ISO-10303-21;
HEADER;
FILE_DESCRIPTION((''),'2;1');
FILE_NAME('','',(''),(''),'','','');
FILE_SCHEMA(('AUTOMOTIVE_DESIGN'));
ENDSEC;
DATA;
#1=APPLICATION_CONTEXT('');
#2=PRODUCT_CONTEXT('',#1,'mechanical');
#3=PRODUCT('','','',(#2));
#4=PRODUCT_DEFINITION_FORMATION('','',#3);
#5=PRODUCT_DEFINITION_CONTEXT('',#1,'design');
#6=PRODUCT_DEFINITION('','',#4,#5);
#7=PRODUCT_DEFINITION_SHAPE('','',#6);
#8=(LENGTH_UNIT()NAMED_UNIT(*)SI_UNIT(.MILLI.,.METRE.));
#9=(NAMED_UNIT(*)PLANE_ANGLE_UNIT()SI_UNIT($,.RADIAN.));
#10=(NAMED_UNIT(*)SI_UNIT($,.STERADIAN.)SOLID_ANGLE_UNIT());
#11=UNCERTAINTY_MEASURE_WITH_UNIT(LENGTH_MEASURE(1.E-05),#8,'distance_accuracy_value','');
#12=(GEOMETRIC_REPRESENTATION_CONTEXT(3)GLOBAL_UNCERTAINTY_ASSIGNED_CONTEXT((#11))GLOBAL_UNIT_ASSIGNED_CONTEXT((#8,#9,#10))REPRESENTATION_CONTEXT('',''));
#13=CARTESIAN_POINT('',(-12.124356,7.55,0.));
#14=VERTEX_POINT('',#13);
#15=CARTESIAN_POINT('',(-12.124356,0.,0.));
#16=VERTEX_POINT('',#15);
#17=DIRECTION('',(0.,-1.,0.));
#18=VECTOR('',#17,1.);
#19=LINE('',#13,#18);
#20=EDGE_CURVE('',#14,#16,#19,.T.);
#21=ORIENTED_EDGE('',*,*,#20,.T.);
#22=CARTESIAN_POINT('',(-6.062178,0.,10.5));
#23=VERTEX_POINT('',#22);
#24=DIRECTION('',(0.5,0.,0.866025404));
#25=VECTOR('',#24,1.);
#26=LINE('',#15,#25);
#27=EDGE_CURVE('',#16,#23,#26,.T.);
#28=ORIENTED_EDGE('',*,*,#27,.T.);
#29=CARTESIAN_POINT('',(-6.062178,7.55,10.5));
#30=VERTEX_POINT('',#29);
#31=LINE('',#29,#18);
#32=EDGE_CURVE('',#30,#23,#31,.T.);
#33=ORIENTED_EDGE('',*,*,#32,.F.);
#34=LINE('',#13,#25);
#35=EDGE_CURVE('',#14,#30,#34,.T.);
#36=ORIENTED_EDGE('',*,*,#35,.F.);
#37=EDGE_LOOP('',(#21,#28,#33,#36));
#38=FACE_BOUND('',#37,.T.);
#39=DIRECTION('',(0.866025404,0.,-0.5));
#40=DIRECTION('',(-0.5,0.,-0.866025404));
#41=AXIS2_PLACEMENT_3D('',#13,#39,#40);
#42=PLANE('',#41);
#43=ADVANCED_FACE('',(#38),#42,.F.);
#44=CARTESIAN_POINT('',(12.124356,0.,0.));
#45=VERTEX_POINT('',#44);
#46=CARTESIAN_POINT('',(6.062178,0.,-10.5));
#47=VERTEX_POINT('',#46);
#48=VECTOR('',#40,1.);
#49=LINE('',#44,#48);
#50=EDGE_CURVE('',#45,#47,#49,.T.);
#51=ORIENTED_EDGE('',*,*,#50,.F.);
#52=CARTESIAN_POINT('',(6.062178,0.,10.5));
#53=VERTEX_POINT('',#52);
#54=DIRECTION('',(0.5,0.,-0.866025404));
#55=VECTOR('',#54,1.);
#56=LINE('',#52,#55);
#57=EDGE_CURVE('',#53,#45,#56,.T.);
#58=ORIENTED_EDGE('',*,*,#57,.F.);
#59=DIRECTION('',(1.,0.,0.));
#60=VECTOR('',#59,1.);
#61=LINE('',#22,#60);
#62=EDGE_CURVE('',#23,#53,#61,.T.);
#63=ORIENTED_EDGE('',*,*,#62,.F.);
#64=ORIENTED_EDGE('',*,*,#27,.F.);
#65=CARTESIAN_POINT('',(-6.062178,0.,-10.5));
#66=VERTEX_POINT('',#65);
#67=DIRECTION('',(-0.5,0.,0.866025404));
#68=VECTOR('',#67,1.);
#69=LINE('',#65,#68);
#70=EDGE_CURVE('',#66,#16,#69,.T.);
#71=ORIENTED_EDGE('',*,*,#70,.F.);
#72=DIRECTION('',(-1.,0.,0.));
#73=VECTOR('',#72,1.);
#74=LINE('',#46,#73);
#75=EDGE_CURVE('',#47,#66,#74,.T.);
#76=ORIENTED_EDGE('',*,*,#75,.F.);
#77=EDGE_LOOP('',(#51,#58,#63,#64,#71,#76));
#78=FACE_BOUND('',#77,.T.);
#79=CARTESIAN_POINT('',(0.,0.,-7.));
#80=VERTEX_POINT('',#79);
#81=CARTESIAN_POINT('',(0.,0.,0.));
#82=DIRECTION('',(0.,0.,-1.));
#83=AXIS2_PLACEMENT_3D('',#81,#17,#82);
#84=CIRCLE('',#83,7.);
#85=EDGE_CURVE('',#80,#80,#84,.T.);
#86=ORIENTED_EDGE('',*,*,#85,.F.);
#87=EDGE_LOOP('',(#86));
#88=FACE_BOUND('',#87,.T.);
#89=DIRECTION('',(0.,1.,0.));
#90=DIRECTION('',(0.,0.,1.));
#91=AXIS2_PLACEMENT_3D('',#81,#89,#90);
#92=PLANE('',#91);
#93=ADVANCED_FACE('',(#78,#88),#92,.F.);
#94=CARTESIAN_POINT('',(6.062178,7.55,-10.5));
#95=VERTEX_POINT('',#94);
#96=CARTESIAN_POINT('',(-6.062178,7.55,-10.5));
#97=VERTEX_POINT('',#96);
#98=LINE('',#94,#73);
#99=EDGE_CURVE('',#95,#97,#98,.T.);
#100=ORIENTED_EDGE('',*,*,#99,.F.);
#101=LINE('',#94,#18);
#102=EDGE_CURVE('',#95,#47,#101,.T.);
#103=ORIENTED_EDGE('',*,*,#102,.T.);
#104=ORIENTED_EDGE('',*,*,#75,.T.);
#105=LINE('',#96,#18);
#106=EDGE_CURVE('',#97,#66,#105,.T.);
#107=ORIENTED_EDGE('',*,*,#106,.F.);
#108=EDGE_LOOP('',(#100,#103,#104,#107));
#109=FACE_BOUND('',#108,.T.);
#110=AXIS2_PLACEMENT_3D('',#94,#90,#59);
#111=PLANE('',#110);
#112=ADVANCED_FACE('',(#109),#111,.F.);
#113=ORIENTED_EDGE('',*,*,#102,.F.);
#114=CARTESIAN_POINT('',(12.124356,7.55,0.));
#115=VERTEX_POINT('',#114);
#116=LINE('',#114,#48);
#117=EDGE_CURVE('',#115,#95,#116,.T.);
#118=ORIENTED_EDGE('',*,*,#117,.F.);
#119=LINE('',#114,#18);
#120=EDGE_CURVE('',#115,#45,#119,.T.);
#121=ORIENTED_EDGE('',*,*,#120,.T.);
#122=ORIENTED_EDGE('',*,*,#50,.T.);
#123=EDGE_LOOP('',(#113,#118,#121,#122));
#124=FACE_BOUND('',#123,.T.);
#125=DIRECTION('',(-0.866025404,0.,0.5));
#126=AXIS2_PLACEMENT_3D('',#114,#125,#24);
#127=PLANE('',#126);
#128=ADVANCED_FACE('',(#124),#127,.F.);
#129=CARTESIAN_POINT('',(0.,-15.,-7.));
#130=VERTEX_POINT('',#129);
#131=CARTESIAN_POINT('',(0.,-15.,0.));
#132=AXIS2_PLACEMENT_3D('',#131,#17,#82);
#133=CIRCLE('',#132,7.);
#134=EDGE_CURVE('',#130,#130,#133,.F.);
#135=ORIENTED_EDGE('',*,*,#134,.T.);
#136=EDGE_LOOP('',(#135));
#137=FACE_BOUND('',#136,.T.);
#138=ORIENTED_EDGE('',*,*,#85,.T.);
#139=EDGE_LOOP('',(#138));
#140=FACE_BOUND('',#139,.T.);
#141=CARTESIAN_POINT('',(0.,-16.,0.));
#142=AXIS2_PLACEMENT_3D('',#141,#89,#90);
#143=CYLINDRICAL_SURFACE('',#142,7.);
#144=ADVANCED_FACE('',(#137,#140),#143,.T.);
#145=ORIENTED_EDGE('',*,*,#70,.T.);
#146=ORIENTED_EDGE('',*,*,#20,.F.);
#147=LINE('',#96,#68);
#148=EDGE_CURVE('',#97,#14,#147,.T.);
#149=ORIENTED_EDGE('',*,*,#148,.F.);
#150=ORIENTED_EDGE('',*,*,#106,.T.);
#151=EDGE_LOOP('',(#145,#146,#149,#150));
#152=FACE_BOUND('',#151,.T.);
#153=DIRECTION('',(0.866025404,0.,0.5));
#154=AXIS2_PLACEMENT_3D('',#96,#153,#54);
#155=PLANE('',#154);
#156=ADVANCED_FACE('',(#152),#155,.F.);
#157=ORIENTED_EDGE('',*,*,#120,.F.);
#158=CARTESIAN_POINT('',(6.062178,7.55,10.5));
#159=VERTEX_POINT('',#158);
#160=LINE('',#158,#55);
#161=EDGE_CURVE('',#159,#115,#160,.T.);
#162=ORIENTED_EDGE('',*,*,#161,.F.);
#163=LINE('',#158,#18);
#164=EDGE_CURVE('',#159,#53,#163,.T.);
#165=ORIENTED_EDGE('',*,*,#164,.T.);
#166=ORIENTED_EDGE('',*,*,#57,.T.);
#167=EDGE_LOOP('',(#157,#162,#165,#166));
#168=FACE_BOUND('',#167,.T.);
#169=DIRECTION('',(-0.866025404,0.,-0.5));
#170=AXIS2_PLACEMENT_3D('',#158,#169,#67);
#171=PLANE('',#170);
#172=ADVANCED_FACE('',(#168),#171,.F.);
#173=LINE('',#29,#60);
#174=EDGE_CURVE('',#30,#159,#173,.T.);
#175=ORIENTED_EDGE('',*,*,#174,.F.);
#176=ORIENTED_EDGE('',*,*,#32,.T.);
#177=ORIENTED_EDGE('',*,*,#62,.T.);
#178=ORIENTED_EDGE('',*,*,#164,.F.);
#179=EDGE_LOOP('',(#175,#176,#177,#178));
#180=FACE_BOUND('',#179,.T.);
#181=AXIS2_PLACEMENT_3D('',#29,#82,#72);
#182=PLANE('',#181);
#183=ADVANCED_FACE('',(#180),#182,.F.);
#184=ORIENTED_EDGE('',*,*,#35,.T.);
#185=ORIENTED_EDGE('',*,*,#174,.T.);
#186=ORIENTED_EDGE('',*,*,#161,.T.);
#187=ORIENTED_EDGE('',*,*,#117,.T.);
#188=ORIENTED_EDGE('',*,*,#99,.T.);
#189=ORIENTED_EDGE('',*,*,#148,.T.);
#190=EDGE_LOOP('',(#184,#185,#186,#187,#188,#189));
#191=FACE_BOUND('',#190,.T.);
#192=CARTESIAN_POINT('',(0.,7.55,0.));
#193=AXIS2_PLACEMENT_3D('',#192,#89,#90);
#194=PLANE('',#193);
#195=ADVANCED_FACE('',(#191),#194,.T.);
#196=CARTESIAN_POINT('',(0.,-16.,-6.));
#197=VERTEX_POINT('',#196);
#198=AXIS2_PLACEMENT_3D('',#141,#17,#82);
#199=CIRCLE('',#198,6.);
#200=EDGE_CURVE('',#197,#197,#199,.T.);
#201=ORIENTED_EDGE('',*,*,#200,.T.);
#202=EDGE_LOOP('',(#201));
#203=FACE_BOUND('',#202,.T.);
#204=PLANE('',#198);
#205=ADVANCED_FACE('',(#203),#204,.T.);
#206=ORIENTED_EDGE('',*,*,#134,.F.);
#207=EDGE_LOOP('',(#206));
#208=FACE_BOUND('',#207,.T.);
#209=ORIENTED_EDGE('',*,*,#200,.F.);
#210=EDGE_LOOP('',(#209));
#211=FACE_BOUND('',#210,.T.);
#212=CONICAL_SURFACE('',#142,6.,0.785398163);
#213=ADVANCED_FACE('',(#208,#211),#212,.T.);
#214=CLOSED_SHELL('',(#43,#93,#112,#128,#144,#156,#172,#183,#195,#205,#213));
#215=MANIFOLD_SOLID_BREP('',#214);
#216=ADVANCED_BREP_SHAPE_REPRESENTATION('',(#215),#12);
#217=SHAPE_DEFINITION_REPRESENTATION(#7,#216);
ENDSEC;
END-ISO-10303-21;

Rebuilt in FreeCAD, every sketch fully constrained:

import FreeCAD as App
import Part
import Sketcher
Q = App.Units.Quantity


def edges_at(feature, points):
    """Names of the edges that pass closest to the given points."""
    edges = feature.Shape.Edges
    near = lambda p: min(range(len(edges)), key=lambda i: edges[i].distToShape(Part.Vertex(*p))[0])
    return sorted({f"Edge{near(p) + 1}" for p in points})


def add_polygon(sketch, points):
    """Adds a closed chain of lines whose ends are joined by coincident constraints."""
    first, n = sketch.GeometryCount, len(points)
    for a, b in zip(points, points[1:] + points[:1]):
        sketch.addGeometry(Part.LineSegment(App.Vector(*a, 0), App.Vector(*b, 0)), False)
    for i in range(n):
        sketch.addConstraint(Sketcher.Constraint("Coincident", first + i, 2, first + (i + 1) % n, 1))

doc = App.newDocument("Part")
body = doc.addObject("PartDesign::Body", "Body")

# Sketch on XZ plane
sketch1 = body.newObject("Sketcher::SketchObject", "Sketch")
sketch1.AttachmentSupport = (doc.getObject("XZ_Plane"), [""])
sketch1.MapMode = "FlatFace"
add_polygon(sketch1, [(-12.124356, 0), (-6.062178, 10.5), (6.062178, 10.5), (12.124356, 0), (6.062178, -10.5), (-6.062178, -10.5)])  # lines 0-5
sketch1.addConstraint([
    Sketcher.Constraint("Horizontal", 1),
    Sketcher.Constraint("Horizontal", 4),
    Sketcher.Constraint("Symmetric", 0, 2, 3, 2, -1, 1),
    Sketcher.Constraint("Symmetric", 2, 2, 5, 2, -1, 1),
    Sketcher.Constraint("PointOnObject", 2, 2, -1),
    Sketcher.Constraint("Parallel", 2, 5),
    Sketcher.Constraint("Vertical", 1, 2, 3, 2),
    Sketcher.Constraint("Angle", 0, Q("60 deg")),
    Sketcher.Constraint("DistanceY", 3, 2, 1, 2, Q("21 mm")),
    Sketcher.Constraint("DistanceX", 1, 1, 1, 2, Q("12.124356 mm")),
])
pad1 = body.newObject("PartDesign::Pad", "Pad")
pad1.Profile = sketch1
pad1.Length = 7.55
pad1.Reversed = True

# Sketch on XZ plane
sketch2 = body.newObject("Sketcher::SketchObject", "Sketch001")
sketch2.AttachmentSupport = (doc.getObject("XZ_Plane"), [""])
sketch2.MapMode = "FlatFace"
sketch2.addGeometry(Part.Circle(App.Vector(0, 0, 0), App.Vector(0, 0, 1), 7), False)
sketch2.addConstraint([
    Sketcher.Constraint("Coincident", 0, 3, -1, 1),
    Sketcher.Constraint("Diameter", 0, Q("14 mm")),
])
pad2 = body.newObject("PartDesign::Pad", "Pad001")
pad2.Profile = sketch2
pad2.Length = 16
doc.recompute()

chamfer = body.newObject("PartDesign::Chamfer", "Chamfer")
chamfer.Base = (pad2, edges_at(pad2, [(0, -16, 7)]))
chamfer.Size = 1

doc.recompute()
